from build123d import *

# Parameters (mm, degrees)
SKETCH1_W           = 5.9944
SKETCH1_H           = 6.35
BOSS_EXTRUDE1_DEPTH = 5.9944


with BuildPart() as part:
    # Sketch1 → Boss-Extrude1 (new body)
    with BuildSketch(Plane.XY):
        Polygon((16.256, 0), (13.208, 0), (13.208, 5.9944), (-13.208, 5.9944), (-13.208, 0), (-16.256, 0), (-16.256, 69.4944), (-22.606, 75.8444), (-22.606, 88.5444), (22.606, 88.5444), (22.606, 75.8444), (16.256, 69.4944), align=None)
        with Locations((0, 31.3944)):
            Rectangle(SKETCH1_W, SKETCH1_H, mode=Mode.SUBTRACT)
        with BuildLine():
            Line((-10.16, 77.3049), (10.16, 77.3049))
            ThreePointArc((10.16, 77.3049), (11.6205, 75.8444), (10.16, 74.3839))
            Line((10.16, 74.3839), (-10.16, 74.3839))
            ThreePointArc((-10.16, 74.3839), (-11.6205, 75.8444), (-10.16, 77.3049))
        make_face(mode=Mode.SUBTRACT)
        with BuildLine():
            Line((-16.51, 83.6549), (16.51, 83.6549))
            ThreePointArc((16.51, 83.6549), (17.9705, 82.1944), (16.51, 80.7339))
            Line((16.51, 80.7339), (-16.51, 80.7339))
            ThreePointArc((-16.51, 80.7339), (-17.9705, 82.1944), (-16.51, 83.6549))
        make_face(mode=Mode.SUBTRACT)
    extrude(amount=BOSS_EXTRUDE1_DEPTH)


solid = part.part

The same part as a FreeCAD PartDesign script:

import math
import FreeCAD as App
import Part
import Sketcher
Q = App.Units.Quantity


def add_polygon(sketch, points):
    """Adds a closed chain of lines whose ends are joined by coincident constraints."""
    first, n = sketch.GeometryCount, len(points)
    for a, b in zip(points, points[1:] + points[:1]):
        sketch.addGeometry(Part.LineSegment(App.Vector(*a, 0), App.Vector(*b, 0)), False)
    for i in range(n):
        sketch.addConstraint(Sketcher.Constraint("Coincident", first + i, 2, first + (i + 1) % n, 1))

doc = App.newDocument("Part")
body = doc.addObject("PartDesign::Body", "Body")

# Sketch on XY plane
sketch1 = body.newObject("Sketcher::SketchObject", "Sketch")
sketch1.AttachmentSupport = (doc.getObject("XY_Plane"), [""])
sketch1.MapMode = "FlatFace"
add_polygon(sketch1, [(13.2, 0), (16.3, 0), (16.3, 69.5), (22.6, 75.8), (22.6, 88.5), (-22.6, 88.5), (-22.6, 75.8), (-16.3, 69.5), (-16.3, 0), (-13.2, 0), (-13.2, 6), (13.2, 6)])  # lines 0-11
add_polygon(sketch1, [(-3, 28.2), (-3, 34.6), (3, 34.6), (3, 28.2)])  # lines 12-15
sketch1.addGeometry(Part.LineSegment(App.Vector(-10.2, 77.3, 0), App.Vector(10.2, 77.3, 0)), False)  # 16
sketch1.addGeometry(Part.ArcOfCircle(Part.Circle(App.Vector(10.2, 75.8, 0), App.Vector(0, 0, 1), 1.5), math.radians(-90), math.radians(90)), False)  # 17
sketch1.addGeometry(Part.LineSegment(App.Vector(10.2, 74.4, 0), App.Vector(-10.2, 74.4, 0)), False)  # 18
sketch1.addGeometry(Part.ArcOfCircle(Part.Circle(App.Vector(-10.2, 75.8, 0), App.Vector(0, 0, 1), 1.5), math.radians(90), math.radians(270)), False)  # 19
sketch1.addGeometry(Part.LineSegment(App.Vector(-16.5, 83.7, 0), App.Vector(16.5, 83.7, 0)), False)  # 20
sketch1.addGeometry(Part.ArcOfCircle(Part.Circle(App.Vector(16.5, 82.2, 0), App.Vector(0, 0, 1), 1.5), math.radians(-90), math.radians(90)), False)  # 21
sketch1.addGeometry(Part.LineSegment(App.Vector(16.5, 80.7, 0), App.Vector(-16.5, 80.7, 0)), False)  # 22
sketch1.addGeometry(Part.ArcOfCircle(Part.Circle(App.Vector(-16.5, 82.2, 0), App.Vector(0, 0, 1), 1.5), math.radians(90), math.radians(270)), False)  # 23
sketch1.addConstraint([
    Sketcher.Constraint("Tangent", 16, 2, 17, 2),
    Sketcher.Constraint("Tangent", 17, 1, 18, 1),
    Sketcher.Constraint("Tangent", 18, 2, 19, 2),
    Sketcher.Constraint("Tangent", 19, 1, 16, 1),
    Sketcher.Constraint("Tangent", 20, 2, 21, 2),
    Sketcher.Constraint("Tangent", 21, 1, 22, 1),
    Sketcher.Constraint("Tangent", 22, 2, 23, 2),
    Sketcher.Constraint("Tangent", 23, 1, 20, 1),
    Sketcher.Constraint("Horizontal", 0),
    Sketcher.Constraint("Vertical", 1),
    Sketcher.Constraint("Vertical", 3),
    Sketcher.Constraint("Horizontal", 4),
    Sketcher.Constraint("Vertical", 5),
    Sketcher.Constraint("Vertical", 7),
    Sketcher.Constraint("Horizontal", 8),
    Sketcher.Constraint("Vertical", 9),
    Sketcher.Constraint("Horizontal", 10),
    Sketcher.Constraint("Vertical", 11),
    Sketcher.Constraint("Vertical", 12),
    Sketcher.Constraint("Horizontal", 13),
    Sketcher.Constraint("Vertical", 14),
    Sketcher.Constraint("Horizontal", 15),
    Sketcher.Constraint("Horizontal", 16),
    Sketcher.Constraint("Horizontal", 18),
    Sketcher.Constraint("Horizontal", 20),
    Sketcher.Constraint("Horizontal", 22),
    Sketcher.Constraint("Equal", 19, 21),
    Sketcher.Constraint("Symmetric", 0, 2, 7, 2, -1, 1),
    Sketcher.Constraint("Symmetric", 2, 2, 5, 2, -2),
    Sketcher.Constraint("Symmetric", 8, 2, 11, 2, -2),
    Sketcher.Constraint("Perpendicular", 2, 6),
    Sketcher.Constraint("Horizontal", 19, 3, 2, 2),
    Sketcher.Constraint("Horizontal", 1, 2, 6, 2),
    Sketcher.Constraint("Equal", 15, 9),
    Sketcher.Constraint("DistanceX", 16, 1, 16, 2, Q("0.8 in")),
    Sketcher.Constraint("DistanceX", 20, 1, 20, 2, Q("1.3 in")),
    Sketcher.Constraint("DistanceY", 3, 1, 3, 2, Q("0.5 in")),
    Sketcher.Constraint("DistanceX", 0, 1, 0, 2, Q("0.12 in")),
    Sketcher.Constraint("DistanceX", 4, 2, 4, 1, Q("1.78 in")),
    Sketcher.Constraint("DistanceX", 10, 1, 10, 2, Q("1.04 in")),
    Sketcher.Constraint("DistanceY", 12, 1, 12, 2, Q("0.25 in")),
    Sketcher.Constraint("DistanceX", -1, 1, 17, 3, Q("0.4 in")),
    Sketcher.Constraint("Radius", 17, Q("0.0575 in")),
    Sketcher.Constraint("DistanceY", 1, 2, 21, 3, Q("0.5 in")),
    Sketcher.Constraint("DistanceY", 9, 2, 6, 2, Q("2.5 in")),
    Sketcher.Constraint("DistanceX", 13, 1, 13, 2, Q("0.236 in")),
    Sketcher.Constraint("DistanceX", -1, 1, 21, 3, Q("0.65 in")),
    Sketcher.Constraint("DistanceX", 12, 2, -1, 1, Q("0.118 in")),
    Sketcher.Constraint("DistanceY", -1, 1, 12, 2, Q("1.361 in")),
])
pad1 = body.newObject("PartDesign::Pad", "Pad")
pad1.Profile = sketch1
pad1.Length = Q("0.236 in")

doc.recompute()
